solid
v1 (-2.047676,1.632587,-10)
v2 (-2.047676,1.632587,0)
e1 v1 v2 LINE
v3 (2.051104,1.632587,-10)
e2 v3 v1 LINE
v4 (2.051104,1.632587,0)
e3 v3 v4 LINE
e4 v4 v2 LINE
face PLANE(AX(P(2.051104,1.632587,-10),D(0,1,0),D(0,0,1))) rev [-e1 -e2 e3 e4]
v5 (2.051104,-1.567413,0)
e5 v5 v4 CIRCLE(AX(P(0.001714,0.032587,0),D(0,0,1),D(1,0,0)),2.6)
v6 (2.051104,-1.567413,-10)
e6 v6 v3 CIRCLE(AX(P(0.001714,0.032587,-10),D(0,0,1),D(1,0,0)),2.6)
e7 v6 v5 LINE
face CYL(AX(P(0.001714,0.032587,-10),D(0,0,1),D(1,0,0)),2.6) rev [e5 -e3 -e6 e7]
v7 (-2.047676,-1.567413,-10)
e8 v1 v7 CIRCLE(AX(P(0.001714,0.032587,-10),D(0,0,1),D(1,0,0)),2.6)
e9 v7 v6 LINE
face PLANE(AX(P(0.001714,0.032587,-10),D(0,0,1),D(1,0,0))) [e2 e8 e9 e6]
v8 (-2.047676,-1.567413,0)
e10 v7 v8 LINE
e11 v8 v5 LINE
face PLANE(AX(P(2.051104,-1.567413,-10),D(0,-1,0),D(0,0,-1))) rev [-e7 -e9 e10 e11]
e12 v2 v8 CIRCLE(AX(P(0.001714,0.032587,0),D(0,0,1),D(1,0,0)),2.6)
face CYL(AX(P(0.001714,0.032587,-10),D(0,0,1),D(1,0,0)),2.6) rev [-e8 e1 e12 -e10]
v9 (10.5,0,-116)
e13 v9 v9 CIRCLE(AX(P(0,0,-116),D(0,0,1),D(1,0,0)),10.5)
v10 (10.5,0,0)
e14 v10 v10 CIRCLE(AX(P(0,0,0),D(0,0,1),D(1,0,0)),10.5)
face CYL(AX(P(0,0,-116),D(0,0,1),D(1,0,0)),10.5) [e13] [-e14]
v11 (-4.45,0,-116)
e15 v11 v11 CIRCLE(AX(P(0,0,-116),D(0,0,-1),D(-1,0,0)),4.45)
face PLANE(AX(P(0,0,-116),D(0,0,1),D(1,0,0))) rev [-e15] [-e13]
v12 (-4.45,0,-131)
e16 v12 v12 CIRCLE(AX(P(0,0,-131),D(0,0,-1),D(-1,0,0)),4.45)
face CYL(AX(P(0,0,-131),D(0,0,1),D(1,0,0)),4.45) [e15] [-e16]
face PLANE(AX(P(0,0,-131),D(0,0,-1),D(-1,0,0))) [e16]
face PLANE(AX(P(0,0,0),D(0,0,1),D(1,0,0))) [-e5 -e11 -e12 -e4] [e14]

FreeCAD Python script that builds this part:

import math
import FreeCAD as App
import Part
import Sketcher

doc = App.newDocument("Part")
body = doc.addObject("PartDesign::Body", "Body")

# Sketch on XY plane
sketch1 = body.newObject("Sketcher::SketchObject", "Sketch")
sketch1.AttachmentSupport = (doc.getObject("XY_Plane"), [""])
sketch1.MapMode = "FlatFace"
sketch1.addGeometry(Part.Circle(App.Vector(0, 0, 0), App.Vector(0, 0, 1), 10), False)
sketch1.addConstraint([
    Sketcher.Constraint("Coincident", 0, 3, -1, 1),
    Sketcher.Constraint("Diameter", 0, 21.0),
])
pad1 = body.newObject("PartDesign::Pad", "Pad")
pad1.Profile = sketch1
pad1.Length = 116
pad1.Reversed = True

# Sketch on XY plane
sketch2 = body.newObject("Sketcher::SketchObject", "Sketch001")
sketch2.AttachmentSupport = (doc.getObject("XY_Plane"), [""])
sketch2.MapMode = "FlatFace"
sketch2.AttachmentOffset = App.Placement(App.Vector(0, 0, -116), App.Rotation())
sketch2.addGeometry(Part.Circle(App.Vector(0, 0, 0), App.Vector(0, 0, 1), 4.5), False)
sketch2.addConstraint([
    Sketcher.Constraint("Coincident", 0, 3, -1, 1),
    Sketcher.Constraint("Diameter", 0, 8.9),
])
pad2 = body.newObject("PartDesign::Pad", "Pad001")
pad2.Profile = sketch2
pad2.Length = 15
pad2.Reversed = True

# Sketch on XY plane
sketch3 = body.newObject("Sketcher::SketchObject", "Sketch002")
sketch3.AttachmentSupport = (doc.getObject("XY_Plane"), [""])
sketch3.MapMode = "FlatFace"
sketch3.addGeometry([
    Part.LineSegment(App.Vector(-2, -1.6, 0), App.Vector(2.1, -1.6, 0)),
    Part.ArcOfCircle(Part.Circle(App.Vector(0, 0, 0), App.Vector(0, 0, 1), 2.6), math.radians(-38), math.radians(38)),
    Part.LineSegment(App.Vector(2.1, 1.6, 0), App.Vector(-2, 1.6, 0)),
    Part.ArcOfCircle(Part.Circle(App.Vector(0, 0, 0), App.Vector(0, 0, 1), 2.6), math.radians(142), math.radians(218)),
], False)
sketch3.addConstraint([
    Sketcher.Constraint("Coincident", 0, 2, 1, 1),
    Sketcher.Constraint("Coincident", 1, 2, 2, 1),
    Sketcher.Constraint("Coincident", 2, 2, 3, 1),
    Sketcher.Constraint("Coincident", 3, 2, 0, 1),
    Sketcher.Constraint("Horizontal", 0),
    Sketcher.Constraint("Horizontal", 2),
    Sketcher.Constraint("Coincident", 3, 3, 1, 3),
    Sketcher.Constraint("Equal", 1, 3),
    Sketcher.Constraint("Vertical", 0, 2, 1, 2),
    Sketcher.Constraint("Radius", 1, 2.6),
    Sketcher.Constraint("DistanceY", 0, 2, 1, 3, 1.6),
    Sketcher.Constraint("DistanceX", -1, 1, 1, 3, 0.001714),
    Sketcher.Constraint("DistanceY", -1, 1, 1, 3, 0.032587),
])
pocket1 = body.newObject("PartDesign::Pocket", "Pocket")
pocket1.Profile = sketch3
pocket1.Length = 10

doc.recompute()
